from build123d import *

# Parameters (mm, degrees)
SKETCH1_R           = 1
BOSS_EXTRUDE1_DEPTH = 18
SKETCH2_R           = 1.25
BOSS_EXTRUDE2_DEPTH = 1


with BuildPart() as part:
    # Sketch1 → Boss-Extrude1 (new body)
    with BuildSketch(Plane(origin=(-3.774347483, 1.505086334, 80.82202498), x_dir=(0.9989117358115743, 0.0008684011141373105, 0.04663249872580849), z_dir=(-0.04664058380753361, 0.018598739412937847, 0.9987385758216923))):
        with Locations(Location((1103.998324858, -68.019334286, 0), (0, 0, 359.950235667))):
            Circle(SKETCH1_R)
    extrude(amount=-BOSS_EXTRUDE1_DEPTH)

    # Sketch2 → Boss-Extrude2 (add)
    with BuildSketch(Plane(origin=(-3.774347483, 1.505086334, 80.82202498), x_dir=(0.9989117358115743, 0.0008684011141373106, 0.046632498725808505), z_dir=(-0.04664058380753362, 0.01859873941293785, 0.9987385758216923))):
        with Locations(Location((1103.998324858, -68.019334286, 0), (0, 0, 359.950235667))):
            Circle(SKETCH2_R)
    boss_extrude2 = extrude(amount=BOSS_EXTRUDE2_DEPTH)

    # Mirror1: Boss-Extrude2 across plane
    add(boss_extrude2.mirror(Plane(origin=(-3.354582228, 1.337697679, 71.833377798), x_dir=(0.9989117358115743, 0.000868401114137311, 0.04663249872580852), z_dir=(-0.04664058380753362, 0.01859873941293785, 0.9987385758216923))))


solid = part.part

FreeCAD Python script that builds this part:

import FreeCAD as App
import Part
import Sketcher
from FreeCAD import Vector
Q = App.Units.Quantity

doc = App.newDocument("Part")
body = doc.addObject("PartDesign::Body", "Body")

# Sketch on an angled plane
sketch1 = doc.addObject("Sketcher::SketchObject", "Sketch")
body.addObject(sketch1)
sketch1.Placement = App.Placement(Vector(-3.774347, 1.505086, 80.822025), App.Rotation(Vector(0.998911736, 0.000868401, 0.046632499), Vector(0, 0.999826652, -0.018619001), Vector(-0.046640584, 0.018598739, 0.998738576), "ZXY"))
sketch1.addGeometry(Part.Circle(Vector(1104, -68, 0), Vector(0, 0, 1), 1), False)
sketch1.addConstraint(Sketcher.Constraint("Diameter", 0, Q("2 mm")))
sketch1.addConstraint(Sketcher.Constraint("DistanceX", -1, 1, 0, 3, Q("1103.998325 mm")))
sketch1.addConstraint(Sketcher.Constraint("DistanceY", 0, 3, -1, 1, Q("68.019334 mm")))
pad1 = doc.addObject("PartDesign::Pad", "Pad")
body.addObject(pad1)
pad1.Profile = sketch1
pad1.Length = 18
pad1.Reversed = True

# Sketch on an angled plane
sketch2 = doc.addObject("Sketcher::SketchObject", "Sketch001")
body.addObject(sketch2)
sketch2.Placement = App.Placement(Vector(-3.774347, 1.505086, 80.822025), App.Rotation(Vector(0.998911736, 0.000868401, 0.046632499), Vector(0, 0.999826652, -0.018619001), Vector(-0.046640584, 0.018598739, 0.998738576), "ZXY"))
sketch2.addGeometry(Part.Circle(Vector(1104, -68, 0), Vector(0, 0, 1), 1.2), False)
sketch2.addConstraint(Sketcher.Constraint("Diameter", 0, Q("2.5 mm")))
sketch2.addConstraint(Sketcher.Constraint("DistanceX", -1, 1, 0, 3, Q("1103.998325 mm")))
sketch2.addConstraint(Sketcher.Constraint("DistanceY", 0, 3, -1, 1, Q("68.019334 mm")))
pad2 = doc.addObject("PartDesign::Pad", "Pad001")
body.addObject(pad2)
pad2.Profile = sketch2
pad2.Length = 1
doc.recompute()

datumplane = doc.addObject("PartDesign::Plane", "DatumPlane")
body.addObject(datumplane)
datumplane.Placement = App.Placement(Vector(-3.354582, 1.337698, 71.833378), App.Rotation(Vector(-0.998911359, 0, -0.046648653), Vector(-0.000867606, -0.999827029, 0.018578492), Vector(-0.046640584, 0.018598739, 0.998738576), "ZXY"))
mirrored = doc.addObject("PartDesign::Mirrored", "Mirrored")
body.addObject(mirrored)
mirrored.Originals = [pad2]
mirrored.MirrorPlane = (datumplane, [""])
body.Tip = mirrored

doc.recompute()
